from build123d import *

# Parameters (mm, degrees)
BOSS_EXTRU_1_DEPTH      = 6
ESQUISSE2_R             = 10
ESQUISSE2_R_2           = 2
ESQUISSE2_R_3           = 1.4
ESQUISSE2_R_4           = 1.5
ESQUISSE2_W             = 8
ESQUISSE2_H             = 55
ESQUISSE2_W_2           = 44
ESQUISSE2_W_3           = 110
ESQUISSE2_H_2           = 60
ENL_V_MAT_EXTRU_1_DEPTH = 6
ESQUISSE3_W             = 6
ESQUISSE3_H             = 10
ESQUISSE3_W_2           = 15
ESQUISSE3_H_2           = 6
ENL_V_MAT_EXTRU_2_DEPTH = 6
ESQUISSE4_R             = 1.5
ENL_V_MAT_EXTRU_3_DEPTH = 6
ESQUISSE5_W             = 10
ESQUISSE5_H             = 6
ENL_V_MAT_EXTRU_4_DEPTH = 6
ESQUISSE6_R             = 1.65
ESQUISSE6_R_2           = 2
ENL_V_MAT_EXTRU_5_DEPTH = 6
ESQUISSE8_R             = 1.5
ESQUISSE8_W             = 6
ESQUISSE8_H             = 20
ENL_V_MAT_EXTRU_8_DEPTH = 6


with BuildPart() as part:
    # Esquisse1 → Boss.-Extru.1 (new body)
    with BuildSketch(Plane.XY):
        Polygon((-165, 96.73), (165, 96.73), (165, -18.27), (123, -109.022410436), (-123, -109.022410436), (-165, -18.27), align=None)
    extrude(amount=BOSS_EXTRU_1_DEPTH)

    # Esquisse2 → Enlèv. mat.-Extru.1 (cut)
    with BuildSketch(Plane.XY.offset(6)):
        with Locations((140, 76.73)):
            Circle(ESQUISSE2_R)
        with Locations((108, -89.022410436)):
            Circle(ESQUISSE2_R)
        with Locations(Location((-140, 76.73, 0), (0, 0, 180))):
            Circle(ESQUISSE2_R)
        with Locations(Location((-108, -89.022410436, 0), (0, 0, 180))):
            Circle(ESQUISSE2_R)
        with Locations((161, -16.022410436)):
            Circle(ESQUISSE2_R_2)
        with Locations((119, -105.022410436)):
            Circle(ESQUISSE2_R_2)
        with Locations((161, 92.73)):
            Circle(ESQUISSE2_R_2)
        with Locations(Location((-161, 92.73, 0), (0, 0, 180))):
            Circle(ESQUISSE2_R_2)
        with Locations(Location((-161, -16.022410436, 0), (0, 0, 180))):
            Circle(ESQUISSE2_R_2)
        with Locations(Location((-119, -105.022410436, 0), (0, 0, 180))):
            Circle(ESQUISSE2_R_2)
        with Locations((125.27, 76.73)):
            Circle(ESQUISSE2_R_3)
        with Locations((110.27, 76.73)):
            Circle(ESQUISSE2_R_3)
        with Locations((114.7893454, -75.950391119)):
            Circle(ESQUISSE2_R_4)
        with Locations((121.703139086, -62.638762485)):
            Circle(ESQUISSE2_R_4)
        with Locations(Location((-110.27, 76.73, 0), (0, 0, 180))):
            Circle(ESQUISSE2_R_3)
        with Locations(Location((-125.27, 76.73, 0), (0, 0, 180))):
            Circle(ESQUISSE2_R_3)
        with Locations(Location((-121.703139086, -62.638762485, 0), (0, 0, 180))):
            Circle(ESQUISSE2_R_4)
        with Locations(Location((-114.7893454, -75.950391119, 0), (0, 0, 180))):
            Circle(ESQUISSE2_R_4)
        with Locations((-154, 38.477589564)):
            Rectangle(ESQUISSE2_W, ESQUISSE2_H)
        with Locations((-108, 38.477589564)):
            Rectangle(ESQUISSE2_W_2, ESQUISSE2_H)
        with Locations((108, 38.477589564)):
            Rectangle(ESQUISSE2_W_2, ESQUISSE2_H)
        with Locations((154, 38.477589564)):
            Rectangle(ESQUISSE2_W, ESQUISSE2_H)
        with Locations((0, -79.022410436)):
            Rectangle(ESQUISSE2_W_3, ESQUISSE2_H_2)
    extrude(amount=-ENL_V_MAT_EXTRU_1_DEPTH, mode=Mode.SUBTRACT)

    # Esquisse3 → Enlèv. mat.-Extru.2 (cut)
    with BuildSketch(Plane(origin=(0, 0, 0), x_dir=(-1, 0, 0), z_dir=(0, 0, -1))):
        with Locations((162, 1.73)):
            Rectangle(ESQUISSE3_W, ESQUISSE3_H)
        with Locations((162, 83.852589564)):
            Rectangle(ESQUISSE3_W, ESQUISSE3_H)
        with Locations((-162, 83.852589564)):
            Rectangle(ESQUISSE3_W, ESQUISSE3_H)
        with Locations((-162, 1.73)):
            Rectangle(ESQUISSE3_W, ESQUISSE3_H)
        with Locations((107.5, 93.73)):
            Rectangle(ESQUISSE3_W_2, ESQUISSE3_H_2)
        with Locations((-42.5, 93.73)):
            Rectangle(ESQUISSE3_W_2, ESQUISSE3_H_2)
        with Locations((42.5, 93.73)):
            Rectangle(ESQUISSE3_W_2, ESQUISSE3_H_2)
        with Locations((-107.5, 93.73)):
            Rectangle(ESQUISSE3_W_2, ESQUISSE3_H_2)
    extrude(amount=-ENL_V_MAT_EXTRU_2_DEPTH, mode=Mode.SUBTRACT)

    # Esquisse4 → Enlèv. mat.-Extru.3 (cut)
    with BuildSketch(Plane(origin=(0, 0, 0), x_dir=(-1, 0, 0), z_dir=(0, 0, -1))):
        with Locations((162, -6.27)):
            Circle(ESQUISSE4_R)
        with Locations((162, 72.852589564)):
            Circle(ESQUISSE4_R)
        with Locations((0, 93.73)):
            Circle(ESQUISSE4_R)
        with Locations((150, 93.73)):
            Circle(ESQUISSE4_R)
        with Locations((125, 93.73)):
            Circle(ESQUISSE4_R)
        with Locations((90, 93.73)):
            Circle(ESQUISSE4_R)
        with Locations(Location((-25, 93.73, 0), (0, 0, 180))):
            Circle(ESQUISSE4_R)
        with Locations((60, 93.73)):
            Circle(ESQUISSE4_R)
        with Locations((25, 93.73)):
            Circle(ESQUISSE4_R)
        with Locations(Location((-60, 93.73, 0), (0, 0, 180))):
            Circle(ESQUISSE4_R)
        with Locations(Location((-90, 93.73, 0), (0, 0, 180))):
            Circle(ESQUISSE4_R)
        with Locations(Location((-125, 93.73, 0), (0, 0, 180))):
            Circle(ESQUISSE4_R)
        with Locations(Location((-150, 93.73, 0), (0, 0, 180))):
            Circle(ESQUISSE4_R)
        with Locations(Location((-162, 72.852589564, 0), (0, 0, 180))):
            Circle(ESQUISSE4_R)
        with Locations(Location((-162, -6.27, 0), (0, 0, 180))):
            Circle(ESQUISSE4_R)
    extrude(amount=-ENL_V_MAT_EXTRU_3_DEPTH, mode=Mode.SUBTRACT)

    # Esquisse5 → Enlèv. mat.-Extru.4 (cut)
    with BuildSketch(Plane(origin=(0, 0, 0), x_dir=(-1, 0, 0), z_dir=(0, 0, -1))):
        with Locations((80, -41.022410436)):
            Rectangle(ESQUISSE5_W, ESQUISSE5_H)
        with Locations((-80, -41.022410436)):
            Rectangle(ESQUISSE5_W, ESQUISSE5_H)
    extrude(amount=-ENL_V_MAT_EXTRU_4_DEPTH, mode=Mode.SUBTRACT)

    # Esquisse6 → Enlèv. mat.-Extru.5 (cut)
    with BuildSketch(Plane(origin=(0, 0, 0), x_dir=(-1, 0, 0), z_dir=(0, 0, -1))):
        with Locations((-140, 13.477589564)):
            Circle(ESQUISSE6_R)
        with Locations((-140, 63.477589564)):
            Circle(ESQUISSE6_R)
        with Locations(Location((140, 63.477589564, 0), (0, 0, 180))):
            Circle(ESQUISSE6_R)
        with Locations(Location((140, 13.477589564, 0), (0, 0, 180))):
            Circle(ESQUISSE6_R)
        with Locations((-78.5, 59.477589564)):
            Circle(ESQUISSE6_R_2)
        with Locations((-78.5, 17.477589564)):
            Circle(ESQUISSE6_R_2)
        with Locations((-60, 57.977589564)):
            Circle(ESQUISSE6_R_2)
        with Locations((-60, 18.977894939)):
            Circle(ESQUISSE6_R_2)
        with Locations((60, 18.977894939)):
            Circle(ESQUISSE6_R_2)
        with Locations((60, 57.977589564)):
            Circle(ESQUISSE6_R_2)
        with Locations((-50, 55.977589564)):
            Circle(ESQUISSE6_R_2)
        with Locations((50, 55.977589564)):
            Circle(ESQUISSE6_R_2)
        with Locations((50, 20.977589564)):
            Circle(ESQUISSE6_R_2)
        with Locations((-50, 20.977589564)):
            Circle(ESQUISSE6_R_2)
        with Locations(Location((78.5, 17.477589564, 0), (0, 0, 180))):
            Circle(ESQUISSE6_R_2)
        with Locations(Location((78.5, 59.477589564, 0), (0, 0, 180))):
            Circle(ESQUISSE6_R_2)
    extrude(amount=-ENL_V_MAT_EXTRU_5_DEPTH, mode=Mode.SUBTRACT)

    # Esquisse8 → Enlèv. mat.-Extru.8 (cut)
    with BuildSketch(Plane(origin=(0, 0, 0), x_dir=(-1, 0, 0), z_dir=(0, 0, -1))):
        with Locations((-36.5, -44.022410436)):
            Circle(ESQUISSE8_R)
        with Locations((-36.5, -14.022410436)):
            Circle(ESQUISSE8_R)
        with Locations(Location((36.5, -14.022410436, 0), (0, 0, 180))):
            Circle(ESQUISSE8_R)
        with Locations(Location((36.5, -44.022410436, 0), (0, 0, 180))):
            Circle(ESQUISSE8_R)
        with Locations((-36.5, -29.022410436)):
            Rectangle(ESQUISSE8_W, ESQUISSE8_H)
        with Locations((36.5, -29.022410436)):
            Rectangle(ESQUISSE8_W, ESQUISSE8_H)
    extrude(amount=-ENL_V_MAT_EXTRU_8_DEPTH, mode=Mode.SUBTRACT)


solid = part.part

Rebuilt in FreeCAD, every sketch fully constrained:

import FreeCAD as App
import Part
import Sketcher
Q = App.Units.Quantity

doc = App.newDocument("Part")
body = doc.addObject("PartDesign::Body", "Body")

# Sketch on XY plane
sketch1 = body.newObject("Sketcher::SketchObject", "Sketch")
sketch1.AttachmentSupport = (doc.getObject("XY_Plane"), [""])
sketch1.MapMode = "FlatFace"
sketch1.addGeometry(Part.LineSegment(App.Vector(165, 97, 0), App.Vector(-165, 97, 0)), False)
sketch1.addGeometry(Part.LineSegment(App.Vector(-165, 97, 0), App.Vector(-165, -18, 0)), False)
sketch1.addGeometry(Part.LineSegment(App.Vector(-165, -18, 0), App.Vector(-123, -109, 0)), False)
sketch1.addGeometry(Part.LineSegment(App.Vector(-123, -109, 0), App.Vector(123, -109, 0)), False)
sketch1.addGeometry(Part.LineSegment(App.Vector(123, -109, 0), App.Vector(165, -18, 0)), False)
sketch1.addGeometry(Part.LineSegment(App.Vector(165, -18, 0), App.Vector(165, 97, 0)), False)
sketch1.addConstraint(Sketcher.Constraint("Coincident", 0, 2, 1, 1))
sketch1.addConstraint(Sketcher.Constraint("Coincident", 1, 2, 2, 1))
sketch1.addConstraint(Sketcher.Constraint("Coincident", 2, 2, 3, 1))
sketch1.addConstraint(Sketcher.Constraint("Coincident", 3, 2, 4, 1))
sketch1.addConstraint(Sketcher.Constraint("Coincident", 4, 2, 5, 1))
sketch1.addConstraint(Sketcher.Constraint("Coincident", 5, 2, 0, 1))
sketch1.addConstraint(Sketcher.Constraint("Horizontal", 0))
sketch1.addConstraint(Sketcher.Constraint("Vertical", 1))
sketch1.addConstraint(Sketcher.Constraint("Horizontal", 3))
sketch1.addConstraint(Sketcher.Constraint("Vertical", 5))
sketch1.addConstraint(Sketcher.Constraint("Symmetric", 1, 2, 4, 2, -2))
sketch1.addConstraint(Sketcher.Constraint("Equal", 2, 4))
sketch1.addConstraint(Sketcher.Constraint("DistanceX", 0, 2, 0, 1, Q("330 mm")))
sketch1.addConstraint(Sketcher.Constraint("DistanceX", 3, 1, 3, 2, Q("246 mm")))
sketch1.addConstraint(Sketcher.Constraint("DistanceY", 1, 2, 1, 1, Q("115 mm")))
sketch1.addConstraint(Sketcher.Constraint("Distance", 2, Q("100 mm")))
sketch1.addConstraint(Sketcher.Constraint("DistanceY", -1, 1, 0, 2, Q("96.73 mm")))
pad1 = body.newObject("PartDesign::Pad", "Pad")
pad1.Profile = sketch1
pad1.Length = 6

# Sketch on XY plane
sketch2 = body.newObject("Sketcher::SketchObject", "Sketch001")
sketch2.AttachmentSupport = (doc.getObject("XY_Plane"), [""])
sketch2.MapMode = "FlatFace"
sketch2.AttachmentOffset = App.Placement(App.Vector(0, 0, 6), App.Rotation())
sketch2.addGeometry(Part.Circle(App.Vector(140, 76.7, 0), App.Vector(0, 0, 1), 10), False)
sketch2.addGeometry(Part.Circle(App.Vector(108, -89, 0), App.Vector(0, 0, 1), 10), False)
sketch2.addGeometry(Part.Circle(App.Vector(-140, 76.7, 0), App.Vector(0, 0, 1), 10), False)
sketch2.addGeometry(Part.Circle(App.Vector(-108, -89, 0), App.Vector(0, 0, 1), 10), False)
sketch2.addGeometry(Part.Circle(App.Vector(161, -16, 0), App.Vector(0, 0, 1), 2), False)
sketch2.addGeometry(Part.Circle(App.Vector(119, -105, 0), App.Vector(0, 0, 1), 2), False)
sketch2.addGeometry(Part.Circle(App.Vector(161, 92.7, 0), App.Vector(0, 0, 1), 2), False)
sketch2.addGeometry(Part.Circle(App.Vector(-161, 92.7, 0), App.Vector(0, 0, 1), 2), False)
sketch2.addGeometry(Part.Circle(App.Vector(-161, -16, 0), App.Vector(0, 0, 1), 2), False)
sketch2.addGeometry(Part.Circle(App.Vector(-119, -105, 0), App.Vector(0, 0, 1), 2), False)
sketch2.addGeometry(Part.Circle(App.Vector(125.3, 76.7, 0), App.Vector(0, 0, 1), 1.4), False)
sketch2.addGeometry(Part.Circle(App.Vector(110.3, 76.7, 0), App.Vector(0, 0, 1), 1.4), False)
sketch2.addGeometry(Part.Circle(App.Vector(114.8, -76, 0), App.Vector(0, 0, 1), 1.5), False)
sketch2.addGeometry(Part.Circle(App.Vector(121.7, -62.6, 0), App.Vector(0, 0, 1), 1.5), False)
sketch2.addGeometry(Part.Circle(App.Vector(-110.3, 76.7, 0), App.Vector(0, 0, 1), 1.4), False)
sketch2.addGeometry(Part.Circle(App.Vector(-125.3, 76.7, 0), App.Vector(0, 0, 1), 1.4), False)
sketch2.addGeometry(Part.Circle(App.Vector(-121.7, -62.6, 0), App.Vector(0, 0, 1), 1.5), False)
sketch2.addGeometry(Part.Circle(App.Vector(-114.8, -76, 0), App.Vector(0, 0, 1), 1.5), False)
sketch2.addGeometry(Part.LineSegment(App.Vector(-158, 66, 0), App.Vector(-158, 11, 0)), False)
sketch2.addGeometry(Part.LineSegment(App.Vector(-158, 11, 0), App.Vector(-150, 11, 0)), False)
sketch2.addGeometry(Part.LineSegment(App.Vector(-150, 11, 0), App.Vector(-150, 66, 0)), False)
sketch2.addGeometry(Part.LineSegment(App.Vector(-150, 66, 0), App.Vector(-158, 66, 0)), False)
sketch2.addGeometry(Part.LineSegment(App.Vector(-130, 66, 0), App.Vector(-130, 11, 0)), False)
sketch2.addGeometry(Part.LineSegment(App.Vector(-130, 11, 0), App.Vector(-86, 11, 0)), False)
sketch2.addGeometry(Part.LineSegment(App.Vector(-86, 11, 0), App.Vector(-86, 66, 0)), False)
sketch2.addGeometry(Part.LineSegment(App.Vector(-86, 66, 0), App.Vector(-130, 66, 0)), False)
sketch2.addGeometry(Part.LineSegment(App.Vector(86, 66, 0), App.Vector(86, 11, 0)), False)
sketch2.addGeometry(Part.LineSegment(App.Vector(86, 11, 0), App.Vector(130, 11, 0)), False)
sketch2.addGeometry(Part.LineSegment(App.Vector(130, 11, 0), App.Vector(130, 66, 0)), False)
sketch2.addGeometry(Part.LineSegment(App.Vector(130, 66, 0), App.Vector(86, 66, 0)), False)
sketch2.addGeometry(Part.LineSegment(App.Vector(150, 66, 0), App.Vector(150, 11, 0)), False)
sketch2.addGeometry(Part.LineSegment(App.Vector(150, 11, 0), App.Vector(158, 11, 0)), False)
sketch2.addGeometry(Part.LineSegment(App.Vector(158, 11, 0), App.Vector(158, 66, 0)), False)
sketch2.addGeometry(Part.LineSegment(App.Vector(158, 66, 0), App.Vector(150, 66, 0)), False)
sketch2.addGeometry(Part.LineSegment(App.Vector(-55, -49, 0), App.Vector(-55, -109, 0)), False)
sketch2.addGeometry(Part.LineSegment(App.Vector(-55, -109, 0), App.Vector(55, -109, 0)), False)
sketch2.addGeometry(Part.LineSegment(App.Vector(55, -109, 0), App.Vector(55, -49, 0)), False)
sketch2.addGeometry(Part.LineSegment(App.Vector(55, -49, 0), App.Vector(-55, -49, 0)), False)
sketch2.addConstraint(Sketcher.Constraint("Coincident", 18, 2, 19, 1))
sketch2.addConstraint(Sketcher.Constraint("Coincident", 19, 2, 20, 1))
sketch2.addConstraint(Sketcher.Constraint("Coincident", 20, 2, 21, 1))
sketch2.addConstraint(Sketcher.Constraint("Coincident", 21, 2, 18, 1))
sketch2.addConstraint(Sketcher.Constraint("Coincident", 22, 2, 23, 1))
sketch2.addConstraint(Sketcher.Constraint("Coincident", 23, 2, 24, 1))
sketch2.addConstraint(Sketcher.Constraint("Coincident", 24, 2, 25, 1))
sketch2.addConstraint(Sketcher.Constraint("Coincident", 25, 2, 22, 1))
sketch2.addConstraint(Sketcher.Constraint("Coincident", 26, 2, 27, 1))
sketch2.addConstraint(Sketcher.Constraint("Coincident", 27, 2, 28, 1))
sketch2.addConstraint(Sketcher.Constraint("Coincident", 28, 2, 29, 1))
sketch2.addConstraint(Sketcher.Constraint("Coincident", 29, 2, 26, 1))
sketch2.addConstraint(Sketcher.Constraint("Coincident", 30, 2, 31, 1))
sketch2.addConstraint(Sketcher.Constraint("Coincident", 31, 2, 32, 1))
sketch2.addConstraint(Sketcher.Constraint("Coincident", 32, 2, 33, 1))
sketch2.addConstraint(Sketcher.Constraint("Coincident", 33, 2, 30, 1))
sketch2.addConstraint(Sketcher.Constraint("Coincident", 34, 2, 35, 1))
sketch2.addConstraint(Sketcher.Constraint("Coincident", 35, 2, 36, 1))
sketch2.addConstraint(Sketcher.Constraint("Coincident", 36, 2, 37, 1))
sketch2.addConstraint(Sketcher.Constraint("Coincident", 37, 2, 34, 1))
sketch2.addConstraint(Sketcher.Constraint("Vertical", 18))
sketch2.addConstraint(Sketcher.Constraint("Horizontal", 19))
sketch2.addConstraint(Sketcher.Constraint("Vertical", 20))
sketch2.addConstraint(Sketcher.Constraint("Horizontal", 21))
sketch2.addConstraint(Sketcher.Constraint("Vertical", 22))
sketch2.addConstraint(Sketcher.Constraint("Horizontal", 23))
sketch2.addConstraint(Sketcher.Constraint("Vertical", 24))
sketch2.addConstraint(Sketcher.Constraint("Horizontal", 25))
sketch2.addConstraint(Sketcher.Constraint("Vertical", 26))
sketch2.addConstraint(Sketcher.Constraint("Horizontal", 27))
sketch2.addConstraint(Sketcher.Constraint("Vertical", 28))
sketch2.addConstraint(Sketcher.Constraint("Horizontal", 29))
sketch2.addConstraint(Sketcher.Constraint("Vertical", 30))
sketch2.addConstraint(Sketcher.Constraint("Horizontal", 31))
sketch2.addConstraint(Sketcher.Constraint("Vertical", 32))
sketch2.addConstraint(Sketcher.Constraint("Horizontal", 33))
sketch2.addConstraint(Sketcher.Constraint("Vertical", 34))
sketch2.addConstraint(Sketcher.Constraint("Horizontal", 35))
sketch2.addConstraint(Sketcher.Constraint("Vertical", 36))
sketch2.addConstraint(Sketcher.Constraint("Horizontal", 37))
sketch2.addConstraint(Sketcher.Constraint("Equal", 0, 1))
sketch2.addConstraint(Sketcher.Constraint("Equal", 1, 2))
sketch2.addConstraint(Sketcher.Constraint("Equal", 2, 3))
sketch2.addConstraint(Sketcher.Constraint("Equal", 4, 5))
sketch2.addConstraint(Sketcher.Constraint("Equal", 5, 6))
sketch2.addConstraint(Sketcher.Constraint("Equal", 6, 7))
sketch2.addConstraint(Sketcher.Constraint("Equal", 7, 8))
sketch2.addConstraint(Sketcher.Constraint("Equal", 8, 9))
sketch2.addConstraint(Sketcher.Constraint("Equal", 10, 11))
sketch2.addConstraint(Sketcher.Constraint("Equal", 12, 13))
sketch2.addConstraint(Sketcher.Constraint("Equal", 11, 14))
sketch2.addConstraint(Sketcher.Constraint("Equal", 14, 15))
sketch2.addConstraint(Sketcher.Constraint("Equal", 13, 16))
sketch2.addConstraint(Sketcher.Constraint("Equal", 16, 17))
sketch2.addConstraint(Sketcher.Constraint("Symmetric", 0, 3, 2, 3, -2))
sketch2.addConstraint(Sketcher.Constraint("Symmetric", 1, 3, 3, 3, -2))
sketch2.addConstraint(Sketcher.Constraint("Symmetric", 6, 3, 7, 3, -2))
sketch2.addConstraint(Sketcher.Constraint("Symmetric", 4, 3, 8, 3, -2))
sketch2.addConstraint(Sketcher.Constraint("Symmetric", 5, 3, 9, 3, -2))
sketch2.addConstraint(Sketcher.Constraint("Symmetric", 11, 3, 14, 3, -2))
sketch2.addConstraint(Sketcher.Constraint("Symmetric", 10, 3, 15, 3, -2))
sketch2.addConstraint(Sketcher.Constraint("Symmetric", 13, 3, 16, 3, -2))
sketch2.addConstraint(Sketcher.Constraint("Symmetric", 12, 3, 17, 3, -2))
sketch2.addConstraint(Sketcher.Constraint("Symmetric", 23, 2, 26, 2, -2))
sketch2.addConstraint(Sketcher.Constraint("Symmetric", 25, 2, 28, 2, -2))
sketch2.addConstraint(Sketcher.Constraint("Symmetric", 19, 2, 30, 2, -2))
sketch2.addConstraint(Sketcher.Constraint("Symmetric", 21, 2, 32, 2, -2))
sketch2.addConstraint(Sketcher.Constraint("Horizontal", 2, 3, 10, 3))
sketch2.addConstraint(Sketcher.Constraint("Horizontal", 10, 3, 11, 3))
sketch2.addConstraint(Sketcher.Constraint("Horizontal", 19, 2, 22, 2))
sketch2.addConstraint(Sketcher.Constraint("Horizontal", 21, 2, 24, 2))
sketch2.addConstraint(Sketcher.Constraint("Vertical", 4, 3, 6, 3))
sketch2.addConstraint(Sketcher.Constraint("Diameter", 0, Q("20 mm")))
sketch2.addConstraint(Sketcher.Constraint("Diameter", 4, Q("4 mm")))
sketch2.addConstraint(Sketcher.Constraint("Diameter", 12, Q("3 mm")))
sketch2.addConstraint(Sketcher.Constraint("Diameter", 10, Q("2.8 mm")))
sketch2.addConstraint(Sketcher.Constraint("DistanceX", 19, 1, 19, 2, Q("8 mm")))
sketch2.addConstraint(Sketcher.Constraint("DistanceX", 23, 1, 23, 2, Q("44 mm")))
sketch2.addConstraint(Sketcher.Constraint("DistanceX", 35, 1, 35, 2, Q("110 mm")))
sketch2.addConstraint(Sketcher.Constraint("DistanceY", 18, 2, 18, 1, Q("55 mm")))
sketch2.addConstraint(Sketcher.Constraint("DistanceY", 34, 2, 34, 1, Q("60 mm")))
sketch2.addConstraint(Sketcher.Constraint("DistanceX", -1, 1, 0, 3, Q("140 mm")))
sketch2.addConstraint(Sketcher.Constraint("DistanceX", -1, 1, 1, 3, Q("108 mm")))
sketch2.addConstraint(Sketcher.Constraint("DistanceX", -1, 1, 4, 3, Q("161 mm")))
sketch2.addConstraint(Sketcher.Constraint("DistanceX", -1, 1, 5, 3, Q("119 mm")))
sketch2.addConstraint(Sketcher.Constraint("DistanceX", 18, 2, -1, 1, Q("158 mm")))
sketch2.addConstraint(Sketcher.Constraint("DistanceX", 22, 2, -1, 1, Q("130 mm")))
sketch2.addConstraint(Sketcher.Constraint("DistanceX", 34, 2, -1, 1, Q("55 mm")))
sketch2.addConstraint(Sketcher.Constraint("DistanceY", 1, 3, 4, 3, Q("73 mm")))
sketch2.addConstraint(Sketcher.Constraint("DistanceY", 5, 3, 1, 3, Q("16 mm")))
sketch2.addConstraint(Sketcher.Constraint("DistanceY", 0, 3, 6, 3, Q("16 mm")))
sketch2.addConstraint(Sketcher.Constraint("DistanceX", 11, 3, 10, 3, Q("15 mm")))
sketch2.addConstraint(Sketcher.Constraint("DistanceY", 8, 3, 18, 2, Q("27 mm")))
sketch2.addConstraint(Sketcher.Constraint("DistanceY", 34, 2, 3, 3, Q("20 mm")))
sketch2.addConstraint(Sketcher.Constraint("DistanceY", -1, 1, 0, 3, Q("76.73 mm")))
sketch2.addConstraint(Sketcher.Constraint("DistanceX", -1, 1, 10, 3, Q("125.27 mm")))
sketch2.addConstraint(Sketcher.Constraint("DistanceY", 1, 3, -1, 1, Q("89.02241 mm")))
sketch2.addConstraint(Sketcher.Constraint("DistanceY", 12, 3, -1, 1, Q("75.950391 mm")))
sketch2.addConstraint(Sketcher.Constraint("DistanceX", -1, 1, 13, 3, Q("121.703139 mm")))
sketch2.addConstraint(Sketcher.Constraint("DistanceY", 12, 3, 13, 3, Q("13.311629 mm")))
sketch2.addConstraint(Sketcher.Constraint("DistanceX", -1, 1, 12, 3, Q("114.789345 mm")))
pocket1 = body.newObject("PartDesign::Pocket", "Pocket")
pocket1.Profile = sketch2
pocket1.Length = 6

# Sketch on XY plane
sketch3 = body.newObject("Sketcher::SketchObject", "Sketch002")
sketch3.AttachmentSupport = (doc.getObject("XY_Plane"), [""])
sketch3.MapMode = "FlatFace"
sketch3.addGeometry(Part.LineSegment(App.Vector(-159, 7, 0), App.Vector(-159, -3, 0)), False)
sketch3.addGeometry(Part.LineSegment(App.Vector(-159, -3, 0), App.Vector(-165, -3, 0)), False)
sketch3.addGeometry(Part.LineSegment(App.Vector(-165, -3, 0), App.Vector(-165, 7, 0)), False)
sketch3.addGeometry(Part.LineSegment(App.Vector(-165, 7, 0), App.Vector(-159, 7, 0)), False)
sketch3.addGeometry(Part.LineSegment(App.Vector(-159, 89, 0), App.Vector(-159, 79, 0)), False)
sketch3.addGeometry(Part.LineSegment(App.Vector(-159, 79, 0), App.Vector(-165, 79, 0)), False)
sketch3.addGeometry(Part.LineSegment(App.Vector(-165, 79, 0), App.Vector(-165, 89, 0)), False)
sketch3.addGeometry(Part.LineSegment(App.Vector(-165, 89, 0), App.Vector(-159, 89, 0)), False)
sketch3.addGeometry(Part.LineSegment(App.Vector(165, 89, 0), App.Vector(165, 79, 0)), False)
sketch3.addGeometry(Part.LineSegment(App.Vector(165, 79, 0), App.Vector(159, 79, 0)), False)
sketch3.addGeometry(Part.LineSegment(App.Vector(159, 79, 0), App.Vector(159, 89, 0)), False)
sketch3.addGeometry(Part.LineSegment(App.Vector(159, 89, 0), App.Vector(165, 89, 0)), False)
sketch3.addGeometry(Part.LineSegment(App.Vector(165, 7, 0), App.Vector(165, -3, 0)), False)
sketch3.addGeometry(Part.LineSegment(App.Vector(165, -3, 0), App.Vector(159, -3, 0)), False)
sketch3.addGeometry(Part.LineSegment(App.Vector(159, -3, 0), App.Vector(159, 7, 0)), False)
sketch3.addGeometry(Part.LineSegment(App.Vector(159, 7, 0), App.Vector(165, 7, 0)), False)
sketch3.addGeometry(Part.LineSegment(App.Vector(-100, 97, 0), App.Vector(-100, 91, 0)), False)
sketch3.addGeometry(Part.LineSegment(App.Vector(-100, 91, 0), App.Vector(-115, 91, 0)), False)
sketch3.addGeometry(Part.LineSegment(App.Vector(-115, 91, 0), App.Vector(-115, 97, 0)), False)
sketch3.addGeometry(Part.LineSegment(App.Vector(-115, 97, 0), App.Vector(-100, 97, 0)), False)
sketch3.addGeometry(Part.LineSegment(App.Vector(50, 97, 0), App.Vector(50, 91, 0)), False)
sketch3.addGeometry(Part.LineSegment(App.Vector(50, 91, 0), App.Vector(35, 91, 0)), False)
sketch3.addGeometry(Part.LineSegment(App.Vector(35, 91, 0), App.Vector(35, 97, 0)), False)
sketch3.addGeometry(Part.LineSegment(App.Vector(35, 97, 0), App.Vector(50, 97, 0)), False)
sketch3.addGeometry(Part.LineSegment(App.Vector(-35, 97, 0), App.Vector(-35, 91, 0)), False)
sketch3.addGeometry(Part.LineSegment(App.Vector(-35, 91, 0), App.Vector(-50, 91, 0)), False)
sketch3.addGeometry(Part.LineSegment(App.Vector(-50, 91, 0), App.Vector(-50, 97, 0)), False)
sketch3.addGeometry(Part.LineSegment(App.Vector(-50, 97, 0), App.Vector(-35, 97, 0)), False)
sketch3.addGeometry(Part.LineSegment(App.Vector(115, 97, 0), App.Vector(115, 91, 0)), False)
sketch3.addGeometry(Part.LineSegment(App.Vector(115, 91, 0), App.Vector(100, 91, 0)), False)
sketch3.addGeometry(Part.LineSegment(App.Vector(100, 91, 0), App.Vector(100, 97, 0)), False)
sketch3.addGeometry(Part.LineSegment(App.Vector(100, 97, 0), App.Vector(115, 97, 0)), False)
sketch3.addConstraint(Sketcher.Constraint("Coincident", 0, 2, 1, 1))
sketch3.addConstraint(Sketcher.Constraint("Coincident", 1, 2, 2, 1))
sketch3.addConstraint(Sketcher.Constraint("Coincident", 2, 2, 3, 1))
sketch3.addConstraint(Sketcher.Constraint("Coincident", 3, 2, 0, 1))
sketch3.addConstraint(Sketcher.Constraint("Coincident", 4, 2, 5, 1))
sketch3.addConstraint(Sketcher.Constraint("Coincident", 5, 2, 6, 1))
sketch3.addConstraint(Sketcher.Constraint("Coincident", 6, 2, 7, 1))
sketch3.addConstraint(Sketcher.Constraint("Coincident", 7, 2, 4, 1))
sketch3.addConstraint(Sketcher.Constraint("Coincident", 8, 2, 9, 1))
sketch3.addConstraint(Sketcher.Constraint("Coincident", 9, 2, 10, 1))
sketch3.addConstraint(Sketcher.Constraint("Coincident", 10, 2, 11, 1))
sketch3.addConstraint(Sketcher.Constraint("Coincident", 11, 2, 8, 1))
sketch3.addConstraint(Sketcher.Constraint("Coincident", 12, 2, 13, 1))
sketch3.addConstraint(Sketcher.Constraint("Coincident", 13, 2, 14, 1))
sketch3.addConstraint(Sketcher.Constraint("Coincident", 14, 2, 15, 1))
sketch3.addConstraint(Sketcher.Constraint("Coincident", 15, 2, 12, 1))
sketch3.addConstraint(Sketcher.Constraint("Coincident", 16, 2, 17, 1))
sketch3.addConstraint(Sketcher.Constraint("Coincident", 17, 2, 18, 1))
sketch3.addConstraint(Sketcher.Constraint("Coincident", 18, 2, 19, 1))
sketch3.addConstraint(Sketcher.Constraint("Coincident", 19, 2, 16, 1))
sketch3.addConstraint(Sketcher.Constraint("Coincident", 20, 2, 21, 1))
sketch3.addConstraint(Sketcher.Constraint("Coincident", 21, 2, 22, 1))
sketch3.addConstraint(Sketcher.Constraint("Coincident", 22, 2, 23, 1))
sketch3.addConstraint(Sketcher.Constraint("Coincident", 23, 2, 20, 1))
sketch3.addConstraint(Sketcher.Constraint("Coincident", 24, 2, 25, 1))
sketch3.addConstraint(Sketcher.Constraint("Coincident", 25, 2, 26, 1))
sketch3.addConstraint(Sketcher.Constraint("Coincident", 26, 2, 27, 1))
sketch3.addConstraint(Sketcher.Constraint("Coincident", 27, 2, 24, 1))
sketch3.addConstraint(Sketcher.Constraint("Coincident", 28, 2, 29, 1))
sketch3.addConstraint(Sketcher.Constraint("Coincident", 29, 2, 30, 1))
sketch3.addConstraint(Sketcher.Constraint("Coincident", 30, 2, 31, 1))
sketch3.addConstraint(Sketcher.Constraint("Coincident", 31, 2, 28, 1))
sketch3.addConstraint(Sketcher.Constraint("Vertical", 0))
sketch3.addConstraint(Sketcher.Constraint("Horizontal", 1))
sketch3.addConstraint(Sketcher.Constraint("Vertical", 2))
sketch3.addConstraint(Sketcher.Constraint("Horizontal", 3))
sketch3.addConstraint(Sketcher.Constraint("Vertical", 4))
sketch3.addConstraint(Sketcher.Constraint("Horizontal", 5))
sketch3.addConstraint(Sketcher.Constraint("Vertical", 6))
sketch3.addConstraint(Sketcher.Constraint("Horizontal", 7))
sketch3.addConstraint(Sketcher.Constraint("Vertical", 8))
sketch3.addConstraint(Sketcher.Constraint("Horizontal", 9))
sketch3.addConstraint(Sketcher.Constraint("Vertical", 10))
sketch3.addConstraint(Sketcher.Constraint("Horizontal", 11))
sketch3.addConstraint(Sketcher.Constraint("Vertical", 12))
sketch3.addConstraint(Sketcher.Constraint("Horizontal", 13))
sketch3.addConstraint(Sketcher.Constraint("Vertical", 14))
sketch3.addConstraint(Sketcher.Constraint("Horizontal", 15))
sketch3.addConstraint(Sketcher.Constraint("Vertical", 16))
sketch3.addConstraint(Sketcher.Constraint("Horizontal", 17))
sketch3.addConstraint(Sketcher.Constraint("Vertical", 18))
sketch3.addConstraint(Sketcher.Constraint("Horizontal", 19))
sketch3.addConstraint(Sketcher.Constraint("Vertical", 20))
sketch3.addConstraint(Sketcher.Constraint("Horizontal", 21))
sketch3.addConstraint(Sketcher.Constraint("Vertical", 22))
sketch3.addConstraint(Sketcher.Constraint("Horizontal", 23))
sketch3.addConstraint(Sketcher.Constraint("Vertical", 24))
sketch3.addConstraint(Sketcher.Constraint("Horizontal", 25))
sketch3.addConstraint(Sketcher.Constraint("Vertical", 26))
sketch3.addConstraint(Sketcher.Constraint("Horizontal", 27))
sketch3.addConstraint(Sketcher.Constraint("Vertical", 28))
sketch3.addConstraint(Sketcher.Constraint("Horizontal", 29))
sketch3.addConstraint(Sketcher.Constraint("Vertical", 30))
sketch3.addConstraint(Sketcher.Constraint("Horizontal", 31))
sketch3.addConstraint(Sketcher.Constraint("Symmetric", 5, 2, 8, 2, -2))
sketch3.addConstraint(Sketcher.Constraint("Symmetric", 7, 2, 10, 2, -2))
sketch3.addConstraint(Sketcher.Constraint("Symmetric", 1, 2, 12, 2, -2))
sketch3.addConstraint(Sketcher.Constraint("Symmetric", 3, 2, 14, 2, -2))
sketch3.addConstraint(Sketcher.Constraint("Symmetric", 21, 2, 24, 2, -2))
sketch3.addConstraint(Sketcher.Constraint("Symmetric", 23, 2, 26, 2, -2))
sketch3.addConstraint(Sketcher.Constraint("Symmetric", 17, 2, 28, 2, -2))
sketch3.addConstraint(Sketcher.Constraint("Symmetric", 19, 2, 30, 2, -2))
sketch3.addConstraint(Sketcher.Constraint("Horizontal", 17, 2, 20, 2))
sketch3.addConstraint(Sketcher.Constraint("Horizontal", 19, 2, 22, 2))
sketch3.addConstraint(Sketcher.Constraint("Vertical", 3, 2, 4, 2))
sketch3.addConstraint(Sketcher.Constraint("Vertical", 2, 2, 5, 2))
sketch3.addConstraint(Sketcher.Constraint("Equal", 19, 21))
sketch3.addConstraint(Sketcher.Constraint("Equal", 2, 4))
sketch3.addConstraint(Sketcher.Constraint("Equal", 15, 16))
sketch3.addConstraint(Sketcher.Constraint("DistanceX", 1, 2, 1, 1, Q("6 mm")))
sketch3.addConstraint(Sketcher.Constraint("DistanceX", 17, 2, 17, 1, Q("15 mm")))
sketch3.addConstraint(Sketcher.Constraint("DistanceY", 0, 2, 0, 1, Q("10 mm")))
sketch3.addConstraint(Sketcher.Constraint("DistanceX", 0, 2, -1, 1, Q("159 mm")))
sketch3.addConstraint(Sketcher.Constraint("DistanceX", 16, 2, -1, 1, Q("100 mm")))
sketch3.addConstraint(Sketcher.Constraint("DistanceX", -1, 1, 20, 2, Q("50 mm")))
sketch3.addConstraint(Sketcher.Constraint("DistanceY", 3, 2, 16, 2, Q("84 mm")))
sketch3.addConstraint(Sketcher.Constraint("DistanceY", 0, 2, -1, 1, Q("3.27 mm")))
sketch3.addConstraint(Sketcher.Constraint("DistanceY", -1, 1, 4, 2, Q("78.85259 mm")))
pocket2 = body.newObject("PartDesign::Pocket", "Pocket001")
pocket2.Profile = sketch3
pocket2.Length = 6
pocket2.Reversed = True

# Sketch on XY plane
sketch4 = body.newObject("Sketcher::SketchObject", "Sketch003")
sketch4.AttachmentSupport = (doc.getObject("XY_Plane"), [""])
sketch4.MapMode = "FlatFace"
sketch4.addGeometry(Part.Circle(App.Vector(-162, -6.3, 0), App.Vector(0, 0, 1), 1.5), False)
sketch4.addGeometry(Part.Circle(App.Vector(-162, 72.9, 0), App.Vector(0, 0, 1), 1.5), False)
sketch4.addGeometry(Part.Circle(App.Vector(0, 93.7, 0), App.Vector(0, 0, 1), 1.5), False)
sketch4.addGeometry(Part.Circle(App.Vector(-150, 93.7, 0), App.Vector(0, 0, 1), 1.5), False)
sketch4.addGeometry(Part.Circle(App.Vector(-125, 93.7, 0), App.Vector(0, 0, 1), 1.5), False)
sketch4.addGeometry(Part.Circle(App.Vector(-90, 93.7, 0), App.Vector(0, 0, 1), 1.5), False)
sketch4.addGeometry(Part.Circle(App.Vector(25, 93.7, 0), App.Vector(0, 0, 1), 1.5), False)
sketch4.addGeometry(Part.Circle(App.Vector(-60, 93.7, 0), App.Vector(0, 0, 1), 1.5), False)
sketch4.addGeometry(Part.Circle(App.Vector(-25, 93.7, 0), App.Vector(0, 0, 1), 1.5), False)
sketch4.addGeometry(Part.Circle(App.Vector(60, 93.7, 0), App.Vector(0, 0, 1), 1.5), False)
sketch4.addGeometry(Part.Circle(App.Vector(90, 93.7, 0), App.Vector(0, 0, 1), 1.5), False)
sketch4.addGeometry(Part.Circle(App.Vector(125, 93.7, 0), App.Vector(0, 0, 1), 1.5), False)
sketch4.addGeometry(Part.Circle(App.Vector(150, 93.7, 0), App.Vector(0, 0, 1), 1.5), False)
sketch4.addGeometry(Part.Circle(App.Vector(162, 72.9, 0), App.Vector(0, 0, 1), 1.5), False)
sketch4.addGeometry(Part.Circle(App.Vector(162, -6.3, 0), App.Vector(0, 0, 1), 1.5), False)
sketch4.addConstraint(Sketcher.Constraint("Equal", 0, 1))
sketch4.addConstraint(Sketcher.Constraint("Equal", 1, 2))
sketch4.addConstraint(Sketcher.Constraint("Equal", 2, 3))
sketch4.addConstraint(Sketcher.Constraint("Equal", 3, 4))
sketch4.addConstraint(Sketcher.Constraint("Equal", 4, 5))
sketch4.addConstraint(Sketcher.Constraint("Equal", 5, 6))
sketch4.addConstraint(Sketcher.Constraint("Equal", 6, 7))
sketch4.addConstraint(Sketcher.Constraint("Equal", 7, 8))
sketch4.addConstraint(Sketcher.Constraint("Equal", 8, 9))
sketch4.addConstraint(Sketcher.Constraint("Equal", 9, 10))
sketch4.addConstraint(Sketcher.Constraint("Equal", 10, 11))
sketch4.addConstraint(Sketcher.Constraint("Equal", 11, 12))
sketch4.addConstraint(Sketcher.Constraint("Equal", 12, 13))
sketch4.addConstraint(Sketcher.Constraint("Equal", 13, 14))
sketch4.addConstraint(Sketcher.Constraint("Symmetric", 6, 3, 8, 3, -2))
sketch4.addConstraint(Sketcher.Constraint("Symmetric", 7, 3, 9, 3, -2))
sketch4.addConstraint(Sketcher.Constraint("Symmetric", 5, 3, 10, 3, -2))
sketch4.addConstraint(Sketcher.Constraint("Symmetric", 4, 3, 11, 3, -2))
sketch4.addConstraint(Sketcher.Constraint("Symmetric", 3, 3, 12, 3, -2))
sketch4.addConstraint(Sketcher.Constraint("Symmetric", 1, 3, 13, 3, -2))
sketch4.addConstraint(Sketcher.Constraint("Symmetric", 0, 3, 14, 3, -2))
sketch4.addConstraint(Sketcher.Constraint("PointOnObject", 2, 3, -2))
sketch4.addConstraint(Sketcher.Constraint("Horizontal", 2, 3, 3, 3))
sketch4.addConstraint(Sketcher.Constraint("Horizontal", 3, 3, 4, 3))
sketch4.addConstraint(Sketcher.Constraint("Horizontal", 4, 3, 5, 3))
sketch4.addConstraint(Sketcher.Constraint("Horizontal", 5, 3, 6, 3))
sketch4.addConstraint(Sketcher.Constraint("Horizontal", 6, 3, 7, 3))
sketch4.addConstraint(Sketcher.Constraint("Vertical", 0, 3, 1, 3))
sketch4.addConstraint(Sketcher.Constraint("Diameter", 0, Q("3 mm")))
sketch4.addConstraint(Sketcher.Constraint("DistanceX", 0, 3, -1, 1, Q("162 mm")))
sketch4.addConstraint(Sketcher.Constraint("DistanceX", 3, 3, -1, 1, Q("150 mm")))
sketch4.addConstraint(Sketcher.Constraint("DistanceX", 4, 3, -1, 1, Q("125 mm")))
sketch4.addConstraint(Sketcher.Constraint("DistanceX", 5, 3, -1, 1, Q("90 mm")))
sketch4.addConstraint(Sketcher.Constraint("DistanceX", -1, 1, 6, 3, Q("25 mm")))
sketch4.addConstraint(Sketcher.Constraint("DistanceX", 7, 3, -1, 1, Q("60 mm")))
sketch4.addConstraint(Sketcher.Constraint("DistanceY", 0, 3, 2, 3, Q("100 mm")))
sketch4.addConstraint(Sketcher.Constraint("DistanceY", 0, 3, -1, 1, Q("6.27 mm")))
sketch4.addConstraint(Sketcher.Constraint("DistanceY", -1, 1, 1, 3, Q("72.85259 mm")))
pocket3 = body.newObject("PartDesign::Pocket", "Pocket002")
pocket3.Profile = sketch4
pocket3.Length = 6
pocket3.Reversed = True

# Sketch on XY plane
sketch5 = body.newObject("Sketcher::SketchObject", "Sketch004")
sketch5.AttachmentSupport = (doc.getObject("XY_Plane"), [""])
sketch5.MapMode = "FlatFace"
sketch5.addGeometry(Part.LineSegment(App.Vector(-75, -38, 0), App.Vector(-75, -44, 0)), False)
sketch5.addGeometry(Part.LineSegment(App.Vector(-75, -44, 0), App.Vector(-85, -44, 0)), False)
sketch5.addGeometry(Part.LineSegment(App.Vector(-85, -44, 0), App.Vector(-85, -38, 0)), False)
sketch5.addGeometry(Part.LineSegment(App.Vector(-85, -38, 0), App.Vector(-75, -38, 0)), False)
sketch5.addGeometry(Part.LineSegment(App.Vector(85, -38, 0), App.Vector(85, -44, 0)), False)
sketch5.addGeometry(Part.LineSegment(App.Vector(85, -44, 0), App.Vector(75, -44, 0)), False)
sketch5.addGeometry(Part.LineSegment(App.Vector(75, -44, 0), App.Vector(75, -38, 0)), False)
sketch5.addGeometry(Part.LineSegment(App.Vector(75, -38, 0), App.Vector(85, -38, 0)), False)
sketch5.addConstraint(Sketcher.Constraint("Coincident", 0, 2, 1, 1))
sketch5.addConstraint(Sketcher.Constraint("Coincident", 1, 2, 2, 1))
sketch5.addConstraint(Sketcher.Constraint("Coincident", 2, 2, 3, 1))
sketch5.addConstraint(Sketcher.Constraint("Coincident", 3, 2, 0, 1))
sketch5.addConstraint(Sketcher.Constraint("Coincident", 4, 2, 5, 1))
sketch5.addConstraint(Sketcher.Constraint("Coincident", 5, 2, 6, 1))
sketch5.addConstraint(Sketcher.Constraint("Coincident", 6, 2, 7, 1))
sketch5.addConstraint(Sketcher.Constraint("Coincident", 7, 2, 4, 1))
sketch5.addConstraint(Sketcher.Constraint("Vertical", 0))
sketch5.addConstraint(Sketcher.Constraint("Horizontal", 1))
sketch5.addConstraint(Sketcher.Constraint("Vertical", 2))
sketch5.addConstraint(Sketcher.Constraint("Horizontal", 3))
sketch5.addConstraint(Sketcher.Constraint("Vertical", 4))
sketch5.addConstraint(Sketcher.Constraint("Horizontal", 5))
sketch5.addConstraint(Sketcher.Constraint("Vertical", 6))
sketch5.addConstraint(Sketcher.Constraint("Horizontal", 7))
sketch5.addConstraint(Sketcher.Constraint("Symmetric", 1, 2, 4, 2, -2))
sketch5.addConstraint(Sketcher.Constraint("Symmetric", 3, 2, 6, 2, -2))
sketch5.addConstraint(Sketcher.Constraint("DistanceX", 1, 2, 1, 1, Q("10 mm")))
sketch5.addConstraint(Sketcher.Constraint("DistanceY", 0, 2, 0, 1, Q("6 mm")))
sketch5.addConstraint(Sketcher.Constraint("DistanceX", 0, 2, -1, 1, Q("75 mm")))
sketch5.addConstraint(Sketcher.Constraint("DistanceY", 0, 2, -1, 1, Q("44.02241 mm")))
pocket4 = body.newObject("PartDesign::Pocket", "Pocket003")
pocket4.Profile = sketch5
pocket4.Length = 6
pocket4.Reversed = True

# Sketch on XY plane
sketch6 = body.newObject("Sketcher::SketchObject", "Sketch005")
sketch6.AttachmentSupport = (doc.getObject("XY_Plane"), [""])
sketch6.MapMode = "FlatFace"
sketch6.addGeometry(Part.Circle(App.Vector(140, 13.5, 0), App.Vector(0, 0, 1), 1.6), False)
sketch6.addGeometry(Part.Circle(App.Vector(140, 63.5, 0), App.Vector(0, 0, 1), 1.6), False)
sketch6.addGeometry(Part.Circle(App.Vector(-140, 63.5, 0), App.Vector(0, 0, 1), 1.6), False)
sketch6.addGeometry(Part.Circle(App.Vector(-140, 13.5, 0), App.Vector(0, 0, 1), 1.6), False)
sketch6.addGeometry(Part.Circle(App.Vector(78.5, 59.5, 0), App.Vector(0, 0, 1), 2), False)
sketch6.addGeometry(Part.Circle(App.Vector(78.5, 17.5, 0), App.Vector(0, 0, 1), 2), False)
sketch6.addGeometry(Part.Circle(App.Vector(60, 58, 0), App.Vector(0, 0, 1), 2), False)
sketch6.addGeometry(Part.Circle(App.Vector(60, 19, 0), App.Vector(0, 0, 1), 2), False)
sketch6.addGeometry(Part.Circle(App.Vector(-60, 19, 0), App.Vector(0, 0, 1), 2), False)
sketch6.addGeometry(Part.Circle(App.Vector(-60, 58, 0), App.Vector(0, 0, 1), 2), False)
sketch6.addGeometry(Part.Circle(App.Vector(50, 56, 0), App.Vector(0, 0, 1), 2), False)
sketch6.addGeometry(Part.Circle(App.Vector(-50, 56, 0), App.Vector(0, 0, 1), 2), False)
sketch6.addGeometry(Part.Circle(App.Vector(-50, 21, 0), App.Vector(0, 0, 1), 2), False)
sketch6.addGeometry(Part.Circle(App.Vector(50, 21, 0), App.Vector(0, 0, 1), 2), False)
sketch6.addGeometry(Part.Circle(App.Vector(-78.5, 17.5, 0), App.Vector(0, 0, 1), 2), False)
sketch6.addGeometry(Part.Circle(App.Vector(-78.5, 59.5, 0), App.Vector(0, 0, 1), 2), False)
sketch6.addConstraint(Sketcher.Constraint("Equal", 0, 1))
sketch6.addConstraint(Sketcher.Constraint("Equal", 1, 2))
sketch6.addConstraint(Sketcher.Constraint("Equal", 2, 3))
sketch6.addConstraint(Sketcher.Constraint("Equal", 4, 5))
sketch6.addConstraint(Sketcher.Constraint("Equal", 5, 6))
sketch6.addConstraint(Sketcher.Constraint("Equal", 6, 7))
sketch6.addConstraint(Sketcher.Constraint("Equal", 7, 8))
sketch6.addConstraint(Sketcher.Constraint("Equal", 8, 9))
sketch6.addConstraint(Sketcher.Constraint("Equal", 9, 10))
sketch6.addConstraint(Sketcher.Constraint("Equal", 10, 11))
sketch6.addConstraint(Sketcher.Constraint("Equal", 11, 12))
sketch6.addConstraint(Sketcher.Constraint("Equal", 12, 13))
sketch6.addConstraint(Sketcher.Constraint("Equal", 13, 14))
sketch6.addConstraint(Sketcher.Constraint("Equal", 14, 15))
sketch6.addConstraint(Sketcher.Constraint("Symmetric", 1, 3, 2, 3, -2))
sketch6.addConstraint(Sketcher.Constraint("Symmetric", 0, 3, 3, 3, -2))
sketch6.addConstraint(Sketcher.Constraint("Symmetric", 7, 3, 8, 3, -2))
sketch6.addConstraint(Sketcher.Constraint("Symmetric", 6, 3, 9, 3, -2))
sketch6.addConstraint(Sketcher.Constraint("Symmetric", 10, 3, 11, 3, -2))
sketch6.addConstraint(Sketcher.Constraint("Symmetric", 12, 3, 13, 3, -2))
sketch6.addConstraint(Sketcher.Constraint("Symmetric", 5, 3, 14, 3, -2))
sketch6.addConstraint(Sketcher.Constraint("Symmetric", 4, 3, 15, 3, -2))
sketch6.addConstraint(Sketcher.Constraint("Vertical", 0, 3, 1, 3))
sketch6.addConstraint(Sketcher.Constraint("Vertical", 4, 3, 5, 3))
sketch6.addConstraint(Sketcher.Constraint("Vertical", 6, 3, 7, 3))
sketch6.addConstraint(Sketcher.Constraint("Vertical", 11, 3, 12, 3))
sketch6.addConstraint(Sketcher.Constraint("Diameter", 4, Q("4 mm")))
sketch6.addConstraint(Sketcher.Constraint("Diameter", 0, Q("3.3 mm")))
sketch6.addConstraint(Sketcher.Constraint("DistanceX", -1, 1, 0, 3, Q("140 mm")))
sketch6.addConstraint(Sketcher.Constraint("DistanceX", -1, 1, 6, 3, Q("60 mm")))
sketch6.addConstraint(Sketcher.Constraint("DistanceX", -1, 1, 10, 3, Q("50 mm")))
sketch6.addConstraint(Sketcher.Constraint("DistanceY", 0, 3, 1, 3, Q("50 mm")))
sketch6.addConstraint(Sketcher.Constraint("DistanceY", 4, 3, 1, 3, Q("4 mm")))
sketch6.addConstraint(Sketcher.Constraint("DistanceY", 5, 3, 4, 3, Q("42 mm")))
sketch6.addConstraint(Sketcher.Constraint("DistanceY", 10, 3, 6, 3, Q("2 mm")))
sketch6.addConstraint(Sketcher.Constraint("DistanceY", 12, 3, 11, 3, Q("35 mm")))
sketch6.addConstraint(Sketcher.Constraint("DistanceX", -1, 1, 4, 3, Q("78.5 mm")))
sketch6.addConstraint(Sketcher.Constraint("DistanceY", 6, 3, 4, 3, Q("1.5 mm")))
sketch6.addConstraint(Sketcher.Constraint("DistanceY", -1, 1, 0, 3, Q("13.47759 mm")))
sketch6.addConstraint(Sketcher.Constraint("DistanceY", -1, 1, 7, 3, Q("18.977895 mm")))
pocket5 = body.newObject("PartDesign::Pocket", "Pocket004")
pocket5.Profile = sketch6
pocket5.Length = 6
pocket5.Reversed = True

# Sketch on XY plane
sketch7 = body.newObject("Sketcher::SketchObject", "Sketch006")
sketch7.AttachmentSupport = (doc.getObject("XY_Plane"), [""])
sketch7.MapMode = "FlatFace"
sketch7.addGeometry(Part.Circle(App.Vector(36.5, -44, 0), App.Vector(0, 0, 1), 1.5), False)
sketch7.addGeometry(Part.Circle(App.Vector(36.5, -14, 0), App.Vector(0, 0, 1), 1.5), False)
sketch7.addGeometry(Part.Circle(App.Vector(-36.5, -14, 0), App.Vector(0, 0, 1), 1.5), False)
sketch7.addGeometry(Part.Circle(App.Vector(-36.5, -44, 0), App.Vector(0, 0, 1), 1.5), False)
sketch7.addGeometry(Part.LineSegment(App.Vector(39.5, -19, 0), App.Vector(39.5, -39, 0)), False)
sketch7.addGeometry(Part.LineSegment(App.Vector(39.5, -39, 0), App.Vector(33.5, -39, 0)), False)
sketch7.addGeometry(Part.LineSegment(App.Vector(33.5, -39, 0), App.Vector(33.5, -19, 0)), False)
sketch7.addGeometry(Part.LineSegment(App.Vector(33.5, -19, 0), App.Vector(39.5, -19, 0)), False)
sketch7.addGeometry(Part.LineSegment(App.Vector(-33.5, -19, 0), App.Vector(-33.5, -39, 0)), False)
sketch7.addGeometry(Part.LineSegment(App.Vector(-33.5, -39, 0), App.Vector(-39.5, -39, 0)), False)
sketch7.addGeometry(Part.LineSegment(App.Vector(-39.5, -39, 0), App.Vector(-39.5, -19, 0)), False)
sketch7.addGeometry(Part.LineSegment(App.Vector(-39.5, -19, 0), App.Vector(-33.5, -19, 0)), False)
sketch7.addConstraint(Sketcher.Constraint("Coincident", 4, 2, 5, 1))
sketch7.addConstraint(Sketcher.Constraint("Coincident", 5, 2, 6, 1))
sketch7.addConstraint(Sketcher.Constraint("Coincident", 6, 2, 7, 1))
sketch7.addConstraint(Sketcher.Constraint("Coincident", 7, 2, 4, 1))
sketch7.addConstraint(Sketcher.Constraint("Coincident", 8, 2, 9, 1))
sketch7.addConstraint(Sketcher.Constraint("Coincident", 9, 2, 10, 1))
sketch7.addConstraint(Sketcher.Constraint("Coincident", 10, 2, 11, 1))
sketch7.addConstraint(Sketcher.Constraint("Coincident", 11, 2, 8, 1))
sketch7.addConstraint(Sketcher.Constraint("Vertical", 4))
sketch7.addConstraint(Sketcher.Constraint("Horizontal", 5))
sketch7.addConstraint(Sketcher.Constraint("Vertical", 6))
sketch7.addConstraint(Sketcher.Constraint("Horizontal", 7))
sketch7.addConstraint(Sketcher.Constraint("Vertical", 8))
sketch7.addConstraint(Sketcher.Constraint("Horizontal", 9))
sketch7.addConstraint(Sketcher.Constraint("Vertical", 10))
sketch7.addConstraint(Sketcher.Constraint("Horizontal", 11))
sketch7.addConstraint(Sketcher.Constraint("Equal", 0, 1))
sketch7.addConstraint(Sketcher.Constraint("Equal", 1, 2))
sketch7.addConstraint(Sketcher.Constraint("Equal", 2, 3))
sketch7.addConstraint(Sketcher.Constraint("Symmetric", 1, 3, 2, 3, -2))
sketch7.addConstraint(Sketcher.Constraint("Symmetric", 0, 3, 3, 3, -2))
sketch7.addConstraint(Sketcher.Constraint("Symmetric", 5, 2, 8, 2, -2))
sketch7.addConstraint(Sketcher.Constraint("Symmetric", 7, 2, 10, 2, -2))
sketch7.addConstraint(Sketcher.Constraint("Vertical", 0, 3, 1, 3))
sketch7.addConstraint(Sketcher.Constraint("Diameter", 0, Q("3 mm")))
sketch7.addConstraint(Sketcher.Constraint("DistanceX", 5, 2, 5, 1, Q("6 mm")))
sketch7.addConstraint(Sketcher.Constraint("DistanceY", 4, 2, 4, 1, Q("20 mm")))
sketch7.addConstraint(Sketcher.Constraint("DistanceY", 0, 3, 1, 3, Q("30 mm")))
sketch7.addConstraint(Sketcher.Constraint("DistanceX", 2, 3, 1, 3, Q("73 mm")))
sketch7.addConstraint(Sketcher.Constraint("DistanceX", 0, 3, 4, 2, Q("3 mm")))
sketch7.addConstraint(Sketcher.Constraint("DistanceY", 0, 3, 4, 2, Q("5 mm")))
sketch7.addConstraint(Sketcher.Constraint("DistanceY", 0, 3, -1, 1, Q("44.02241 mm")))
pocket6 = body.newObject("PartDesign::Pocket", "Pocket005")
pocket6.Profile = sketch7
pocket6.Length = 6
pocket6.Reversed = True

doc.recompute()
